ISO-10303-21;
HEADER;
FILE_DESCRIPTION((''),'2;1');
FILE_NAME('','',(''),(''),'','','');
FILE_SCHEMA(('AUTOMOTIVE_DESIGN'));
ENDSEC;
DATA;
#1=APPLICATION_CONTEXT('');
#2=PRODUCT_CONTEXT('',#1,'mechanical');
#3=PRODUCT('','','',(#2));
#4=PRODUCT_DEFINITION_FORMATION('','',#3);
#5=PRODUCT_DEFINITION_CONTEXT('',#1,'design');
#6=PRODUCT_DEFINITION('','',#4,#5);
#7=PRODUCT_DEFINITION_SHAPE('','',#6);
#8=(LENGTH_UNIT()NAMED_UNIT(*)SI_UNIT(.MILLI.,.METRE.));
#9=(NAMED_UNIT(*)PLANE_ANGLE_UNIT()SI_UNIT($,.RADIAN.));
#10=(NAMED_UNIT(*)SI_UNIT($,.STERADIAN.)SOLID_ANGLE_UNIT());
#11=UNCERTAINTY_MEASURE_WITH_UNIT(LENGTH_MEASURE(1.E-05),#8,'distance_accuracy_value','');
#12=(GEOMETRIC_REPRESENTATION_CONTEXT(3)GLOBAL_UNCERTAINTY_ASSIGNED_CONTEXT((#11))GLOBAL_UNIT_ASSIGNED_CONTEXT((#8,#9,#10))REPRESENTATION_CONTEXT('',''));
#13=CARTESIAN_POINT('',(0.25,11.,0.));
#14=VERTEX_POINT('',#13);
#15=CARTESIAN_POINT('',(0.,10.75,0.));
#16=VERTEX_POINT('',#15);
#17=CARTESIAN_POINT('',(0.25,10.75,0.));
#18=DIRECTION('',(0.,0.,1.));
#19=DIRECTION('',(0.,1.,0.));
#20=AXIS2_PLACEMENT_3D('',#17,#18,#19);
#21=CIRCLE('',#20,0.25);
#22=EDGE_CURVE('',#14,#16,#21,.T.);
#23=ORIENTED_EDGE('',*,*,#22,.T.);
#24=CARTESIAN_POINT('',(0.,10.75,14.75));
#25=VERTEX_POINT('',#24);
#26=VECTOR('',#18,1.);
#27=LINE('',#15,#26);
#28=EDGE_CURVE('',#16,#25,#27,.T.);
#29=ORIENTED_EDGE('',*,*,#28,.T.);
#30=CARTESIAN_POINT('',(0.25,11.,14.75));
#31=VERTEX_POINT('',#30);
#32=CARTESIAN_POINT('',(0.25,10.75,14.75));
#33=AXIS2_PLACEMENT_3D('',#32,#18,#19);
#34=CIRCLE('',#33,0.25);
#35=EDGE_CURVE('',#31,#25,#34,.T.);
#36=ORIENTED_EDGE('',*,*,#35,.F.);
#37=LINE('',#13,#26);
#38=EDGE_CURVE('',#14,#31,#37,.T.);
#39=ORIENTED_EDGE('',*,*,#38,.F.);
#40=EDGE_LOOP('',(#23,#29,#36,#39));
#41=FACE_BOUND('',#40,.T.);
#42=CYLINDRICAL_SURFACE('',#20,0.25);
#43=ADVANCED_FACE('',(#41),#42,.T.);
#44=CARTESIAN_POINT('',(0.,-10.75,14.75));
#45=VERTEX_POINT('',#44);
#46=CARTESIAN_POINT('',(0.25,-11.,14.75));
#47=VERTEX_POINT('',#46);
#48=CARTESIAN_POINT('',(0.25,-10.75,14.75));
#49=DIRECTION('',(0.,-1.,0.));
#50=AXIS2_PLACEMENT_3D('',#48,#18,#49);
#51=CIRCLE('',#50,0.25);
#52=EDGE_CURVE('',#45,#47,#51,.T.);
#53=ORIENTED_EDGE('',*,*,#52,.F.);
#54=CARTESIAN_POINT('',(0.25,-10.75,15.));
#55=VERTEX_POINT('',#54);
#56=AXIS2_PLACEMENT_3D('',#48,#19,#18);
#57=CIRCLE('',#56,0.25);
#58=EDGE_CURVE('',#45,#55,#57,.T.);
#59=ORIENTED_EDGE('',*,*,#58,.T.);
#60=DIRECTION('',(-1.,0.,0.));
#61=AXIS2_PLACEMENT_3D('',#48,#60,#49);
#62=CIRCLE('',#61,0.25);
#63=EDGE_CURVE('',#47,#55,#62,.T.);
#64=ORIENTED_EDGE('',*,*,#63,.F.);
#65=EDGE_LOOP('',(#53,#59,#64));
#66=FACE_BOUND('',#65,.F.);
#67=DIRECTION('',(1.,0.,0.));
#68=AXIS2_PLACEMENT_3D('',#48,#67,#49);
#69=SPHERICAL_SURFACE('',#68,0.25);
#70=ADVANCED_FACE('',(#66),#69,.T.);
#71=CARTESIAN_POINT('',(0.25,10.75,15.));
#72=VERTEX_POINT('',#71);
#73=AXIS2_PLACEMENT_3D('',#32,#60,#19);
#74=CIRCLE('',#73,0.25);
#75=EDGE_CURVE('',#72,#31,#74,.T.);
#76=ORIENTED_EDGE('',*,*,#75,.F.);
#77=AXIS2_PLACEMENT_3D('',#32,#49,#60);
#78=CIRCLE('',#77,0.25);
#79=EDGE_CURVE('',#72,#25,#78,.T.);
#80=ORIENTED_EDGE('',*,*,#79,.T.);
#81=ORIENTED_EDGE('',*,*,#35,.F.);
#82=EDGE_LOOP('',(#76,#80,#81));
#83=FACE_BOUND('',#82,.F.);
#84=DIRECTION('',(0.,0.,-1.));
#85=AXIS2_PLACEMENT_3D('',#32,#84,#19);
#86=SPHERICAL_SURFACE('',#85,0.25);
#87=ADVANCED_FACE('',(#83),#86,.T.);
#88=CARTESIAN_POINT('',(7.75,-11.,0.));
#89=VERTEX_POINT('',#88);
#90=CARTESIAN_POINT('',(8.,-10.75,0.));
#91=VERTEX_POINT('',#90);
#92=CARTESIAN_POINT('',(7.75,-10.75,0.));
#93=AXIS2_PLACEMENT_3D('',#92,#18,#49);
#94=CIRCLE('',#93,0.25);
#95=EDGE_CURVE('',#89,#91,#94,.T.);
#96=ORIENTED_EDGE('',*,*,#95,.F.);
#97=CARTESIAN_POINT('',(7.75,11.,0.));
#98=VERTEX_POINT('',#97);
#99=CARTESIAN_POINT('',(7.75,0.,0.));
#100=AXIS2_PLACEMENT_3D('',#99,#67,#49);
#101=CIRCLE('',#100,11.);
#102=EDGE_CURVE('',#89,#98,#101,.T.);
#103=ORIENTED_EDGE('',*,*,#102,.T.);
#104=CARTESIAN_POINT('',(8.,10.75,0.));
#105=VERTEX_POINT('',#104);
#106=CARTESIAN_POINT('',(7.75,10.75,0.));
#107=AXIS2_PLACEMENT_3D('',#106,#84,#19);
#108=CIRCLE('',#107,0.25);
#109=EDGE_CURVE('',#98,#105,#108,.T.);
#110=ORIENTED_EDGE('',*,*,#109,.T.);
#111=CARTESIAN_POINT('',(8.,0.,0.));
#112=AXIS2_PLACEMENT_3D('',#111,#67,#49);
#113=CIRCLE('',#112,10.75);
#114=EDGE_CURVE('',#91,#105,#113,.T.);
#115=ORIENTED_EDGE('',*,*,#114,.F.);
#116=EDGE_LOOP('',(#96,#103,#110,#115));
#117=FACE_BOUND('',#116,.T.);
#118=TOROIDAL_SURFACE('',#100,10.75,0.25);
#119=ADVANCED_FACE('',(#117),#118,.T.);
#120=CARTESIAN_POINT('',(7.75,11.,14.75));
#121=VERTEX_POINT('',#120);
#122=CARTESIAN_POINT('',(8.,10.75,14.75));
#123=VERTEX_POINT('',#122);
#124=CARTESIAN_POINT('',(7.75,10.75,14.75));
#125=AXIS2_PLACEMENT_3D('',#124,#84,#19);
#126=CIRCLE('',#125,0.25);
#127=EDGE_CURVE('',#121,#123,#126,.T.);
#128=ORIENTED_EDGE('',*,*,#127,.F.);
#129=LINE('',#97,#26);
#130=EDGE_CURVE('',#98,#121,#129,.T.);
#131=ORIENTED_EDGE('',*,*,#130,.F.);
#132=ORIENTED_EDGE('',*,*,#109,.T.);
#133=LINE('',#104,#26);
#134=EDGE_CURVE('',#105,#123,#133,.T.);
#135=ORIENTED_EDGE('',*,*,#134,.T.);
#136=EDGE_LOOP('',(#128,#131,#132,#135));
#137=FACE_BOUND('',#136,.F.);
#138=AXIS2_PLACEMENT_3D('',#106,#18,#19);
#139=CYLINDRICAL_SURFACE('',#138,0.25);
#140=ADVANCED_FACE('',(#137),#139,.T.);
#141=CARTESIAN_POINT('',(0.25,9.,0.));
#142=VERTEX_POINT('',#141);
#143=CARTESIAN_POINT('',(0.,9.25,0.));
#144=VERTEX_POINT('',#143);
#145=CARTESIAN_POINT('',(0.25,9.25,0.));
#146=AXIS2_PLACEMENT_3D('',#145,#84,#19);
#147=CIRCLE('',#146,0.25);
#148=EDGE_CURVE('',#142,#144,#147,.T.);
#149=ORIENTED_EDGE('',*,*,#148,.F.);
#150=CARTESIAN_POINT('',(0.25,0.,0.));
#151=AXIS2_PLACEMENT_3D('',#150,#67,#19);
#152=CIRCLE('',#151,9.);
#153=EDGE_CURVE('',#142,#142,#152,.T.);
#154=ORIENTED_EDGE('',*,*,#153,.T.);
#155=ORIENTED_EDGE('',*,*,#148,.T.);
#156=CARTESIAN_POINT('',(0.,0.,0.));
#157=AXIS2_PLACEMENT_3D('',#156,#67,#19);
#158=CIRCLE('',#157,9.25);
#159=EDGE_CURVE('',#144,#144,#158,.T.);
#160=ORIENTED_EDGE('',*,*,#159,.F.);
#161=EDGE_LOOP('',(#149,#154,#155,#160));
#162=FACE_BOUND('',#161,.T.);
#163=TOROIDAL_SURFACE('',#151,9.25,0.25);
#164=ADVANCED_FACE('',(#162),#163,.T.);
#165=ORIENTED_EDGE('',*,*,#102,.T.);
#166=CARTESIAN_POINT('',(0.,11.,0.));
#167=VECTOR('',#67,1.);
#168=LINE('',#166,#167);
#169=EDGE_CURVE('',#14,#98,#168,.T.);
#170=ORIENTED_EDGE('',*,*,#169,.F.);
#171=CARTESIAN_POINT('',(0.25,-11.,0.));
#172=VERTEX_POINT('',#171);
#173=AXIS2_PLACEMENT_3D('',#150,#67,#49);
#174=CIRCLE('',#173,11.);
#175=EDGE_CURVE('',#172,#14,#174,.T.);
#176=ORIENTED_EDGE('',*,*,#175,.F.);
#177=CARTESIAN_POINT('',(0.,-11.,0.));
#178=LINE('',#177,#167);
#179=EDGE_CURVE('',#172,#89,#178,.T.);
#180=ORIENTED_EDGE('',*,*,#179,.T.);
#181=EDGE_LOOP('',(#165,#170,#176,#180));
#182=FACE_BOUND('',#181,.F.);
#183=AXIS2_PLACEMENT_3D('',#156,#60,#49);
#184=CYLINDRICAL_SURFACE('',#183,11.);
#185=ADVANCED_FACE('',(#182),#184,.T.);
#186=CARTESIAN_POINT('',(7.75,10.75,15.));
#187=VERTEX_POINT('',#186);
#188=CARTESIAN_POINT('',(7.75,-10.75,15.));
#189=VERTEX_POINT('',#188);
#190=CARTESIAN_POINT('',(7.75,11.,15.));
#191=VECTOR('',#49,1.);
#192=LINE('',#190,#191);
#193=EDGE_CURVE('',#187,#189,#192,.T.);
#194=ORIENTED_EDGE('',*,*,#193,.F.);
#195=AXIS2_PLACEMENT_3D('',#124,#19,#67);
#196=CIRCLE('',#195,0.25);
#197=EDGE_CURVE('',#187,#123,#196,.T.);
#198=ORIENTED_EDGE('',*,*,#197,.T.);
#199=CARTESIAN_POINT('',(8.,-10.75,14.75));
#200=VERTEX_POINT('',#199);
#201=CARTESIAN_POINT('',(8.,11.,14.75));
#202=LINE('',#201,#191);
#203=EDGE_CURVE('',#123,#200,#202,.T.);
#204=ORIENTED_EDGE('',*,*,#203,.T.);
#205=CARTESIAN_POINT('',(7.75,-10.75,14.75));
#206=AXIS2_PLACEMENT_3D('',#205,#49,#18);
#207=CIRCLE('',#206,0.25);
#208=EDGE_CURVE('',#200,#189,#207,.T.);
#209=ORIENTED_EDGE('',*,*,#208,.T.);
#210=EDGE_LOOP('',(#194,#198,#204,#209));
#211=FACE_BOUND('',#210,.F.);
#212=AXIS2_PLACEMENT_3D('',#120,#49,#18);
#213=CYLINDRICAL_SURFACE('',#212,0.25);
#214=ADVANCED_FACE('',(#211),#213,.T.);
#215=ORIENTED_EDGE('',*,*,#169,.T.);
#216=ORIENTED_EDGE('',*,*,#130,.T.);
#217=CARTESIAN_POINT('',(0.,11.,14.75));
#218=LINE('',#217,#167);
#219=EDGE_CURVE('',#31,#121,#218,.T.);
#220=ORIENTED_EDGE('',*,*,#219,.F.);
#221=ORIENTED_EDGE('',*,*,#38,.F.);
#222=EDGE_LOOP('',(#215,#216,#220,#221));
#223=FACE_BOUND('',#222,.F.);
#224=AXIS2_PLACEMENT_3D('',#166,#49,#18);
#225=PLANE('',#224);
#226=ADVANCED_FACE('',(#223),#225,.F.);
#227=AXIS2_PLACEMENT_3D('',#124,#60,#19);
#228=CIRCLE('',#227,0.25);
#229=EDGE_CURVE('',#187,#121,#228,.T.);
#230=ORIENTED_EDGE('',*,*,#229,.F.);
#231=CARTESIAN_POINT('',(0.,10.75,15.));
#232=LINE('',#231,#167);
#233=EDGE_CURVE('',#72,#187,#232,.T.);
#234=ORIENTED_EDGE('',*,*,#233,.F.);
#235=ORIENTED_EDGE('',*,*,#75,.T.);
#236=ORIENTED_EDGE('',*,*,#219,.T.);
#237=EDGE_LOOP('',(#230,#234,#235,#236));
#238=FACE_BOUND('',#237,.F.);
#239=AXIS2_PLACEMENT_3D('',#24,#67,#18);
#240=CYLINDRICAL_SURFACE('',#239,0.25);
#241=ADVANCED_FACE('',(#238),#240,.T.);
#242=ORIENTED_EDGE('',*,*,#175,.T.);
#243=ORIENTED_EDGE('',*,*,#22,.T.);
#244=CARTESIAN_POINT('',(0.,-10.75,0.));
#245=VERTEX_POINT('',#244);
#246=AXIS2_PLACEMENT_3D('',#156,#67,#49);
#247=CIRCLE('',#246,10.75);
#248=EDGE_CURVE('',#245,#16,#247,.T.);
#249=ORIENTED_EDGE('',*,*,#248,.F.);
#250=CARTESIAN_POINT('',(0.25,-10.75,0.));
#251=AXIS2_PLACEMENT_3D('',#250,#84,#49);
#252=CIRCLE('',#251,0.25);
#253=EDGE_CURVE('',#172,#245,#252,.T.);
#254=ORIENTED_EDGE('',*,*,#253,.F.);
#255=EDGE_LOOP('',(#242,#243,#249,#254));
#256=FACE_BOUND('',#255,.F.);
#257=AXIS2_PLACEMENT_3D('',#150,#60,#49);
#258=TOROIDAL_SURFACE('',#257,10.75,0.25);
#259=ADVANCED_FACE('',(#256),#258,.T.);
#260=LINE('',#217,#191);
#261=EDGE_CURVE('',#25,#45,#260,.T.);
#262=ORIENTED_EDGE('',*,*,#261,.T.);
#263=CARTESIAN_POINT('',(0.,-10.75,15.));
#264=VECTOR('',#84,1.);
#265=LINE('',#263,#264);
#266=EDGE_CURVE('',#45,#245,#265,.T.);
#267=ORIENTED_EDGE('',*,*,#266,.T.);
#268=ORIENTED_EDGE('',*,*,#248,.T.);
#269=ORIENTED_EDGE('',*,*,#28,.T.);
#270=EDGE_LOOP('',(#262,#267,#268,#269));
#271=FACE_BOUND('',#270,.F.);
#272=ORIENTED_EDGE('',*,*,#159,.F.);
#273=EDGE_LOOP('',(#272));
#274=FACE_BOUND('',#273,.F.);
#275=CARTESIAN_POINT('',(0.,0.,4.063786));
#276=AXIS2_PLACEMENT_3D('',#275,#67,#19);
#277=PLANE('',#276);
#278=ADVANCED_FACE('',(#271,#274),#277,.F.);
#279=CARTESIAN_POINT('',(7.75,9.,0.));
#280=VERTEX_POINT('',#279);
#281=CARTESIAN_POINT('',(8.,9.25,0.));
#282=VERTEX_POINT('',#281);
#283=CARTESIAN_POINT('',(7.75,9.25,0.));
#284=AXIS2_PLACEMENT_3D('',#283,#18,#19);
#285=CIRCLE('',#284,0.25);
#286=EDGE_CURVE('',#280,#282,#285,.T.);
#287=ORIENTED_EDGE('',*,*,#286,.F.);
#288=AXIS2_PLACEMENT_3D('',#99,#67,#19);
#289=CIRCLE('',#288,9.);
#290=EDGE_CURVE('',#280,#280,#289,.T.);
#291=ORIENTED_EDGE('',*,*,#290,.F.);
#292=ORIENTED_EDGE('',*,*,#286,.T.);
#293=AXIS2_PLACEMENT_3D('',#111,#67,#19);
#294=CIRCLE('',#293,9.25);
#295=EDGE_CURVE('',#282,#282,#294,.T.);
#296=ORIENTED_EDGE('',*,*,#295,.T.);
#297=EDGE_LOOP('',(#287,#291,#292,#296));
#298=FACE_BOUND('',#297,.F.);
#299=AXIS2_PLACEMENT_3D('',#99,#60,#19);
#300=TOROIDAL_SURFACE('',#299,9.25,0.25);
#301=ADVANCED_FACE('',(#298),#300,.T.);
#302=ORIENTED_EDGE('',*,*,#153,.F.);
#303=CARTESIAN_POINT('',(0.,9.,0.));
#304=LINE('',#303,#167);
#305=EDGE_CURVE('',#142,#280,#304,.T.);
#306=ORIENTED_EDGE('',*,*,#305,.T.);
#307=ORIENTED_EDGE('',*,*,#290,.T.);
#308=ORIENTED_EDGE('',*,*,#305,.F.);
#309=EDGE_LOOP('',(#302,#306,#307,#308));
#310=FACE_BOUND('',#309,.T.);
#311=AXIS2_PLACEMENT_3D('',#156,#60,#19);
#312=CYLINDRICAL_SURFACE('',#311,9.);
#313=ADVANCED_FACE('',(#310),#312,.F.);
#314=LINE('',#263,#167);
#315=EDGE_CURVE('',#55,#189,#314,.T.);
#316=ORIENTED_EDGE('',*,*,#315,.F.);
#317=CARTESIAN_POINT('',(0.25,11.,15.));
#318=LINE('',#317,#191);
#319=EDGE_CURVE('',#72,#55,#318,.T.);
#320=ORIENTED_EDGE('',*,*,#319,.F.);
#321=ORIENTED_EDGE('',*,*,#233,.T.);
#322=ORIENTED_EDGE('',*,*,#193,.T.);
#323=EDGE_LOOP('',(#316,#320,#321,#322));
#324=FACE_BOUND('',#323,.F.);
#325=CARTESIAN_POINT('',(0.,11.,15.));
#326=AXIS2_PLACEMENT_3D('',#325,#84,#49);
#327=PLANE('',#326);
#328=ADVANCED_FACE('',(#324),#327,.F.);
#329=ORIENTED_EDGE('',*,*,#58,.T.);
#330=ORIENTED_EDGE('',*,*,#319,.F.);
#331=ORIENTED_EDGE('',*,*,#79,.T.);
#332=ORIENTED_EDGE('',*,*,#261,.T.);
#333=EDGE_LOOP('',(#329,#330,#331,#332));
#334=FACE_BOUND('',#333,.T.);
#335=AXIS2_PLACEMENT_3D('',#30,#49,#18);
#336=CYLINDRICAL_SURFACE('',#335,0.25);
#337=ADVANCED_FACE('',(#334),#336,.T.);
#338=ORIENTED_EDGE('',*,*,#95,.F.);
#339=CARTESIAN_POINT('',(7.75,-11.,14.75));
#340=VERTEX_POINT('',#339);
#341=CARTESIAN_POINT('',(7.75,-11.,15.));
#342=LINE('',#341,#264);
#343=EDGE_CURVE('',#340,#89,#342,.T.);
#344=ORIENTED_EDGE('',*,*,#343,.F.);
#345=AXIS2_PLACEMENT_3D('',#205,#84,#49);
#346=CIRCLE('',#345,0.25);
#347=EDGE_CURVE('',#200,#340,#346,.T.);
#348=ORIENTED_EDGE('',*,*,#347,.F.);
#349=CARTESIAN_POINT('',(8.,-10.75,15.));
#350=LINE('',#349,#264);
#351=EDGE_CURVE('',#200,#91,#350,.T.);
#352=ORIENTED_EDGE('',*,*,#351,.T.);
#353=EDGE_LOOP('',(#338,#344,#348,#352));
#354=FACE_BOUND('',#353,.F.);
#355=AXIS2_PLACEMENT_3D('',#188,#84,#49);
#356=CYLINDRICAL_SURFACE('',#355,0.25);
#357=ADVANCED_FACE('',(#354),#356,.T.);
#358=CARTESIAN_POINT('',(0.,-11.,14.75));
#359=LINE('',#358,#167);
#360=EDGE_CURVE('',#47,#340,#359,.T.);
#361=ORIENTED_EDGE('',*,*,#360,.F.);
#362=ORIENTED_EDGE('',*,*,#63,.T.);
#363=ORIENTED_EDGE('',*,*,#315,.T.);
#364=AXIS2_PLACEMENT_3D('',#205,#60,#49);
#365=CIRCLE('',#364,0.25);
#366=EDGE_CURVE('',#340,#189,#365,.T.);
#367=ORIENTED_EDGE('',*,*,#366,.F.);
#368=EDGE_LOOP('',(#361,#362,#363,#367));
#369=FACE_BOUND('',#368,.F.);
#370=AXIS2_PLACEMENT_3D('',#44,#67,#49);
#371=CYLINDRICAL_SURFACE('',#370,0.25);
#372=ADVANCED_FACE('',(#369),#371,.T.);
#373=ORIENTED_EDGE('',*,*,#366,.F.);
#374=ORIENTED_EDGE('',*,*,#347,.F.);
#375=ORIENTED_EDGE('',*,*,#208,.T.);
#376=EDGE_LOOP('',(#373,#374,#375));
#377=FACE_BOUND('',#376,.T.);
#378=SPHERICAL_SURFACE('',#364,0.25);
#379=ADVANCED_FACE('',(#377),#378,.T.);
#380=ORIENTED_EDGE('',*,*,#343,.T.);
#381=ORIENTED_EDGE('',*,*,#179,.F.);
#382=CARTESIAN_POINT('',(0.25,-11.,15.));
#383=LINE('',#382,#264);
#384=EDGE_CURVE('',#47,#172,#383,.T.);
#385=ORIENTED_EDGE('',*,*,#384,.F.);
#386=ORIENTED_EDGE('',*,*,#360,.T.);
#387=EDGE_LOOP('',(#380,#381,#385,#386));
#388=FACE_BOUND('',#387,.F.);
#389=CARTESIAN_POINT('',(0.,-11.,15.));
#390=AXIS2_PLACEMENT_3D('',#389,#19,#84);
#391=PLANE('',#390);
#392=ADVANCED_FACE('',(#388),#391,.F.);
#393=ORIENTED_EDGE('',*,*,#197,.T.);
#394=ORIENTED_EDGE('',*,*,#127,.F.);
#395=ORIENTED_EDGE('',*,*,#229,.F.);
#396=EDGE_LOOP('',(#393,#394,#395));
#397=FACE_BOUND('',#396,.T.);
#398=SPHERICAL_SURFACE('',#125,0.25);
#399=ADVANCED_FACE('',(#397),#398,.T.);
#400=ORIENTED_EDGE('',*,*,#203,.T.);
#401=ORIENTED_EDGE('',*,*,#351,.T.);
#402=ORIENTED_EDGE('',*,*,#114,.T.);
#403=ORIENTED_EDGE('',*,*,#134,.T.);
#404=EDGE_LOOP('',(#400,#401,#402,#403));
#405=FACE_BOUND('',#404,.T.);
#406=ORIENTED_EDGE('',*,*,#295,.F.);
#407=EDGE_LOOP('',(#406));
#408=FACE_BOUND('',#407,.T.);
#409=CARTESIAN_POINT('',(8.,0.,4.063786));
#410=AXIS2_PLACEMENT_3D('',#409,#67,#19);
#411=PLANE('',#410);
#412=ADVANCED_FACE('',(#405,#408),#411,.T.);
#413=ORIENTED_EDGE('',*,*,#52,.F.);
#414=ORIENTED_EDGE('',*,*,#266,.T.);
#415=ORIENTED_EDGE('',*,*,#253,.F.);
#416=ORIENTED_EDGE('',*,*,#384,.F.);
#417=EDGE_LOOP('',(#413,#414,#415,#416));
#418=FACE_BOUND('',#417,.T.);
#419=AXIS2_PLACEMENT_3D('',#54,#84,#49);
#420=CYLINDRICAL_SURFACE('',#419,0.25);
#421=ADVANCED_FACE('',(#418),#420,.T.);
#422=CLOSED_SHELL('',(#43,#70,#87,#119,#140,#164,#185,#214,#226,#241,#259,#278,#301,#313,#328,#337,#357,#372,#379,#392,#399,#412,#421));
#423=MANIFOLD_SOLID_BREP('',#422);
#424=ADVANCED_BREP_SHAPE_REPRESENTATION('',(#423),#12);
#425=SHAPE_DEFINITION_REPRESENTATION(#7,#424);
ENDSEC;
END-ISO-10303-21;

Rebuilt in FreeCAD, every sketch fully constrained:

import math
import FreeCAD as App
import Part
import Sketcher
from FreeCAD import Vector

doc = App.newDocument("Part")
params = doc.addObject("Spreadsheet::Sheet", "Params")
for row, (alias, value) in enumerate([
    ("sketch1_diameter", "18 mm"),
    ("sketch1_radius", "11 mm"),
    ("sketch1_height", "15 mm"),
    ("pad1_length", "8 mm"),
    ("fillet_radius", "0.25 mm"),
], start=1):
    params.set(f"A{row}", alias)
    params.set(f"B{row}", "=" + value)
    params.setAlias(f"B{row}", alias)

body = doc.addObject("PartDesign::Body", "Body")

# Sketch on YZ plane
sketch1 = body.newObject("Sketcher::SketchObject", "Sketch")
sketch1.AttachmentSupport = (doc.getObject("YZ_Plane"), [""])
sketch1.MapMode = "FlatFace"
sketch1.addGeometry([
    Part.LineSegment(Vector(-11, 15, 0), Vector(-11, 0, 0)),  # 0
    Part.ArcOfCircle(Part.Circle(Vector(0, 0, 0), Vector(0, 0, 1), 11), math.radians(180), math.radians(360)),  # 1
    Part.LineSegment(Vector(11, 0, 0), Vector(11, 15, 0)),  # 2
    Part.LineSegment(Vector(11, 15, 0), Vector(-11, 15, 0)),  # 3
    Part.Circle(Vector(0, 0, 0), Vector(0, 0, 1), 9),  # 4
], False)
sketch1.addConstraint([
    Sketcher.Constraint("Tangent", 0, 2, 1, 1),
    Sketcher.Constraint("Tangent", 1, 2, 2, 1),
    Sketcher.Constraint("Coincident", 2, 2, 3, 1),
    Sketcher.Constraint("Coincident", 3, 2, 0, 1),
    Sketcher.Constraint("Vertical", 0),
    Sketcher.Constraint("Vertical", 2),
    Sketcher.Constraint("Horizontal", 3),
    Sketcher.Constraint("Coincident", 1, 3, -1, 1),
    Sketcher.Constraint("Coincident", 4, 3, -1, 1),
    Sketcher.Constraint("Diameter", 4, 18.0),
    Sketcher.Constraint("Radius", 1, 11.0),
    Sketcher.Constraint("DistanceY", 0, 2, 0, 1, 15.0),
])
sketch1.setExpression("Constraints[9]", "Params.sketch1_diameter")
sketch1.setExpression("Constraints[10]", "Params.sketch1_radius")
sketch1.setExpression("Constraints[11]", "Params.sketch1_height")
pad1 = body.newObject("PartDesign::Pad", "Pad")
pad1.Profile = sketch1
pad1.setExpression("Length", "Params.pad1_length")
doc.recompute()

fillet = body.newObject("PartDesign::Fillet", "Fillet")
fillet.Base = (pad1, ["Edge1"])
fillet.UseAllEdges = True
fillet.setExpression("Radius", "Params.fillet_radius")

doc.recompute()
